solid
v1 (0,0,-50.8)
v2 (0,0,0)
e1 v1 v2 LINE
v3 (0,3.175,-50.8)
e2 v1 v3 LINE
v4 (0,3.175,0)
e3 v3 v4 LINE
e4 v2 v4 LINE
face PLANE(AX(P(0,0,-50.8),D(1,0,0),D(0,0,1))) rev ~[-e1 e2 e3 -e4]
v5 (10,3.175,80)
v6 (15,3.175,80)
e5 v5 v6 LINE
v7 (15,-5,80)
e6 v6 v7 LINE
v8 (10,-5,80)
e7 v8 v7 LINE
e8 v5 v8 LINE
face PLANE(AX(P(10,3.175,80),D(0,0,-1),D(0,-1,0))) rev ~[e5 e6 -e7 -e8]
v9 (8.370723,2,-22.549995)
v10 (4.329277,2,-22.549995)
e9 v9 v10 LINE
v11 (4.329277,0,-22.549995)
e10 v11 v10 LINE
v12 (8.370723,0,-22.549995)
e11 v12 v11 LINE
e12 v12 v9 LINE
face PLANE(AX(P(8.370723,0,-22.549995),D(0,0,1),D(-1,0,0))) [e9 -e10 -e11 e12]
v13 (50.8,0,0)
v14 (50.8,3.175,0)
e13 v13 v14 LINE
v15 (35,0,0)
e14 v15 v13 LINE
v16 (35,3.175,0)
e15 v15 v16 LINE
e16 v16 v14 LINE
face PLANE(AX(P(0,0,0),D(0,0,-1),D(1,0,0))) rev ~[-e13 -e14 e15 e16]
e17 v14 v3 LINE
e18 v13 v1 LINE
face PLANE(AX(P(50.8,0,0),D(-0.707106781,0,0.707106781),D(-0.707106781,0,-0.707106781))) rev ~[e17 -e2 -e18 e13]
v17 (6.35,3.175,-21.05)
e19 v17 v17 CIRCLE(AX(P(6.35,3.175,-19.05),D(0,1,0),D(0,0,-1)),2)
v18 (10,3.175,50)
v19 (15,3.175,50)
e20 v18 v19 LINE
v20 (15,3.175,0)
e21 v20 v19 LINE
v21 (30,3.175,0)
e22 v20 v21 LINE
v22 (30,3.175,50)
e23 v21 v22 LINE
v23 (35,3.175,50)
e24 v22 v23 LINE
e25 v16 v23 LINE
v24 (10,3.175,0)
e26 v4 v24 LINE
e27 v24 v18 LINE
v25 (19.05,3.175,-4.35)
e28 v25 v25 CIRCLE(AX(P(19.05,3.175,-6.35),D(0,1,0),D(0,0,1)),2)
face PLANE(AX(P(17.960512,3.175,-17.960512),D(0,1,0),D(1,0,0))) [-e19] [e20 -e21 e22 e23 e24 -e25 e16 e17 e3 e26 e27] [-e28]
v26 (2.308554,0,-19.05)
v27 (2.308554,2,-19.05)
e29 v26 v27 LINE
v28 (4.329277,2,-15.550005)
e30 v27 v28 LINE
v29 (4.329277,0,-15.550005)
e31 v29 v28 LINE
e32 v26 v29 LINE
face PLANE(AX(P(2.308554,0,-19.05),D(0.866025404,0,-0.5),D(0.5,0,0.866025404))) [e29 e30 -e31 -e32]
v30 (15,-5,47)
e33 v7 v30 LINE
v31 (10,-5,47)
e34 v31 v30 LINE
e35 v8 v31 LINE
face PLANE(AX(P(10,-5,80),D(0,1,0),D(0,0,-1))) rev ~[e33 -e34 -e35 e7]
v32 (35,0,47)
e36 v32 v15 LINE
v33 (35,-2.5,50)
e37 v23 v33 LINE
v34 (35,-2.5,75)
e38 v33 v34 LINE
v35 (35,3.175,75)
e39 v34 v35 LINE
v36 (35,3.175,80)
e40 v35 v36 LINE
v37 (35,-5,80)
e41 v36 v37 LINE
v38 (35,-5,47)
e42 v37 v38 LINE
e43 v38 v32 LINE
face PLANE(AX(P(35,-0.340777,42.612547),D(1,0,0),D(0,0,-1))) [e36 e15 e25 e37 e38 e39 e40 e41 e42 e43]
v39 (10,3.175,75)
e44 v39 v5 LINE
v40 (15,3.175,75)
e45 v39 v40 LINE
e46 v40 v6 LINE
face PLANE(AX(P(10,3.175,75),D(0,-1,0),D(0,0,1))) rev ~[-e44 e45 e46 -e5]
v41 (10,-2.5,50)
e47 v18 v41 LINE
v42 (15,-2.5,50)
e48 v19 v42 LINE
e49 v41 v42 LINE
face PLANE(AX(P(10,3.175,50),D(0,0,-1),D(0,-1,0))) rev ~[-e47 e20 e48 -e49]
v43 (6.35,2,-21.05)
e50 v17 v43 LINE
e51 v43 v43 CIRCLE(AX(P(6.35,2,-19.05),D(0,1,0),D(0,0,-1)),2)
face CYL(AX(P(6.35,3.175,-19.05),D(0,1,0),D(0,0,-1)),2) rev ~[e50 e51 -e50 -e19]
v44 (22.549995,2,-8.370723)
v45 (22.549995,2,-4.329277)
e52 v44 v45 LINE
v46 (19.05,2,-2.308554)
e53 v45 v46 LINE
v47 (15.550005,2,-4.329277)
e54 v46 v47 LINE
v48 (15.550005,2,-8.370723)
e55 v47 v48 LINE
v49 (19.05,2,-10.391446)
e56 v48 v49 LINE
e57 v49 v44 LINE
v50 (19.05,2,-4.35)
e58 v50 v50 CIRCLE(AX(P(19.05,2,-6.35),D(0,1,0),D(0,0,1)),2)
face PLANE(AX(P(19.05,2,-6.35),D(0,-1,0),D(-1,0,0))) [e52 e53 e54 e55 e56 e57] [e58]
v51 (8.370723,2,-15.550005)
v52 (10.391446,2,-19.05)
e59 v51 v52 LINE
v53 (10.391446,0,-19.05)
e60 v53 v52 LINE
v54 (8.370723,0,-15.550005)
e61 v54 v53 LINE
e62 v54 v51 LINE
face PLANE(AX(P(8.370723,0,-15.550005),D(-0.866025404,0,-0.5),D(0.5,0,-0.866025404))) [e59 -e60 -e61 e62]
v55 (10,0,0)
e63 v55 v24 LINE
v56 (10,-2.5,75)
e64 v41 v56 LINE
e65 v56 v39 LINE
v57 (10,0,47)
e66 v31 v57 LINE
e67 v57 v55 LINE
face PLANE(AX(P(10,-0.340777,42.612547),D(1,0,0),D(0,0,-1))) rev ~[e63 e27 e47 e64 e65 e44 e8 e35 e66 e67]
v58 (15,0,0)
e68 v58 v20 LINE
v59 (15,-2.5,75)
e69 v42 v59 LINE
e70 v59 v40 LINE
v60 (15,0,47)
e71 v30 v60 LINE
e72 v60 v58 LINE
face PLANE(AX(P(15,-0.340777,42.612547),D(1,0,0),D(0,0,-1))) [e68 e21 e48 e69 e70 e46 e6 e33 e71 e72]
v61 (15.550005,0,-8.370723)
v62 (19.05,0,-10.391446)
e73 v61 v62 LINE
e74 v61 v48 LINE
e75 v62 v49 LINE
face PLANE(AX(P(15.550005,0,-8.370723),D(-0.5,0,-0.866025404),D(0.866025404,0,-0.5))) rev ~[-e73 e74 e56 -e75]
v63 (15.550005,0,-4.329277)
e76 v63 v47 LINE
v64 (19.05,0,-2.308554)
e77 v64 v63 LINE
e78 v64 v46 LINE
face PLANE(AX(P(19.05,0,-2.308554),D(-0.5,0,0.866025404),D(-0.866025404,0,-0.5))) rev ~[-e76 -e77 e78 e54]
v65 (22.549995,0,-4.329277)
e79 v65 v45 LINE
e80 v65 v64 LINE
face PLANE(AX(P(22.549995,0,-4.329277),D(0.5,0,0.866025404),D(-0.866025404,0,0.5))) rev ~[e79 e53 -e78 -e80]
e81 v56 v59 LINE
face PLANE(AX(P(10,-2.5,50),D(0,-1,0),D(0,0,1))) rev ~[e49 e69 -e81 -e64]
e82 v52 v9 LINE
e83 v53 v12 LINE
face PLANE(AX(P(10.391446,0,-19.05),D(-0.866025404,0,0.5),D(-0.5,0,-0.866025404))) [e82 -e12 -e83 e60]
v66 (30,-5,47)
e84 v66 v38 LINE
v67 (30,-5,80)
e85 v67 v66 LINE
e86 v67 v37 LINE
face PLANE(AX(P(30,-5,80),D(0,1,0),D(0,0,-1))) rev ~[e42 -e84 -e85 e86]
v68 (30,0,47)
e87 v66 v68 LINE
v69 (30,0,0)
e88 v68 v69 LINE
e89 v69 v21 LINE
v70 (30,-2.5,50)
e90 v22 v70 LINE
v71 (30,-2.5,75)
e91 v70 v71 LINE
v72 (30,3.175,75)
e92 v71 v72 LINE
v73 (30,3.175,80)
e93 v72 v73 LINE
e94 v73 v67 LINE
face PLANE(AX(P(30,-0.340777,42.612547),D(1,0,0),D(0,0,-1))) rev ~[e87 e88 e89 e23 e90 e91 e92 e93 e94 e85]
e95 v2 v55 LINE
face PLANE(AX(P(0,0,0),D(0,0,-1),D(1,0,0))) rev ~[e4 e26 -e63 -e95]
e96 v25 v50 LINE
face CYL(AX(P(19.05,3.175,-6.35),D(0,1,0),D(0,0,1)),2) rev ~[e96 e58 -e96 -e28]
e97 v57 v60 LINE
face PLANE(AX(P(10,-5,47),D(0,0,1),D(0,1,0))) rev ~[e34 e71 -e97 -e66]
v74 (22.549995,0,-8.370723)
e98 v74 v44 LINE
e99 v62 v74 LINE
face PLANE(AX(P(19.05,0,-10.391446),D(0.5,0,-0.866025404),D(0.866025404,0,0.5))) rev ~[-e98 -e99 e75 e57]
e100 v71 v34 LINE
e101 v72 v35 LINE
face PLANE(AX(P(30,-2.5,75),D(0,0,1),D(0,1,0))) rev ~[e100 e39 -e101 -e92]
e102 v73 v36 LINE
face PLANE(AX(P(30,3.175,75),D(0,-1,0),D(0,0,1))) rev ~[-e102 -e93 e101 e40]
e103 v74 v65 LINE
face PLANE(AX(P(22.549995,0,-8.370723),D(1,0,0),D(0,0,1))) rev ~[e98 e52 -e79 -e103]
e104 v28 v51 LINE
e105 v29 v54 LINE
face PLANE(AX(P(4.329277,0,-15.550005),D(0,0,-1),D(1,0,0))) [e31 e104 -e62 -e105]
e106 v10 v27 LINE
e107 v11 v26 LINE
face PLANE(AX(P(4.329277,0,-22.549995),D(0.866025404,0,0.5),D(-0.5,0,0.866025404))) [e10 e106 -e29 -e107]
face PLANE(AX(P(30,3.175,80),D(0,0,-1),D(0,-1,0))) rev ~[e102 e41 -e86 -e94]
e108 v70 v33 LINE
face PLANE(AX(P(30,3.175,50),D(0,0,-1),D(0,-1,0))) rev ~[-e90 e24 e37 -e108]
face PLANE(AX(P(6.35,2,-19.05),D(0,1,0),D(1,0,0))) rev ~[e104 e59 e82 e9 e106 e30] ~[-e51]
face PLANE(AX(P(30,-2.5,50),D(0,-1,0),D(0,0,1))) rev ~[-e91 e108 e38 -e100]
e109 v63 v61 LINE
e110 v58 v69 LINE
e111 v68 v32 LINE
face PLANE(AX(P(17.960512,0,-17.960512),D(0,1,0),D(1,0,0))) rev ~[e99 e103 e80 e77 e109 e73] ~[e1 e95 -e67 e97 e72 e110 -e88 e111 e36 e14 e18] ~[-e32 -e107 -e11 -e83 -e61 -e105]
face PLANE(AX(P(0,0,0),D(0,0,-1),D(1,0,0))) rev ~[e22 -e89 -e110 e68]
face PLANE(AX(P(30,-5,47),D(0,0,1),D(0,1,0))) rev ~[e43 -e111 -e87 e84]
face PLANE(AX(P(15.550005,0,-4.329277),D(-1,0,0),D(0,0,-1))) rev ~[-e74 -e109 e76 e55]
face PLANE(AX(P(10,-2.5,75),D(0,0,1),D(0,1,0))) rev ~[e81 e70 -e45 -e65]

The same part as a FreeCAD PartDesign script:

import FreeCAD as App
import Part
import Sketcher
Q = App.Units.Quantity

doc = App.newDocument("Part")
params = doc.addObject("Spreadsheet::Sheet", "Params")
for row, (alias, value) in enumerate([
    ("sketch1_width", "50.8 mm"),
    ("pad1_length", "3.175 mm"),
    ("sketch2_diameter", "4 mm"),
    ("pocket2_length", "2 mm"),
    ("sketch4_width", "5 mm"),
    ("sketch4_height", "50 mm"),
    ("sketch4_height2", "25 mm"),
    ("sketch4_height3", "33 mm"),
    ("pad2_length", "5 mm"),
    ("sketch5_width", "5 mm"),
    ("sketch5_height", "50 mm"),
    ("sketch5_height2", "25 mm"),
    ("sketch5_height3", "33 mm"),
    ("pad3_length", "5 mm"),
], start=1):
    params.set(f"A{row}", alias)
    params.set(f"B{row}", "=" + value)
    params.setAlias(f"B{row}", alias)

body = doc.addObject("PartDesign::Body", "Body")

# Sketch on XZ plane
sketch1 = body.newObject("Sketcher::SketchObject", "Sketch")
sketch1.AttachmentSupport = (doc.getObject("XZ_Plane"), [""])
sketch1.MapMode = "FlatFace"
sketch1.addGeometry([
    Part.LineSegment(App.Vector(0, 0, 0), App.Vector(51, 0, 0)),
    Part.LineSegment(App.Vector(51, 0, 0), App.Vector(0, -51, 0)),
    Part.LineSegment(App.Vector(0, -51, 0), App.Vector(0, 0, 0)),
], False)
sketch1.addConstraint([
    Sketcher.Constraint("Coincident", 0, 2, 1, 1),
    Sketcher.Constraint("Coincident", 1, 2, 2, 1),
    Sketcher.Constraint("Coincident", 2, 2, 0, 1),
    Sketcher.Constraint("Horizontal", 0),
    Sketcher.Constraint("Vertical", 2),
    Sketcher.Constraint("Coincident", 2, 2, -1, 1),
    Sketcher.Constraint("Equal", 0, 2),
    Sketcher.Constraint("DistanceX", 0, 1, 0, 2, 50.8),
])
sketch1.setExpression("Constraints[7]", "Params.sketch1_width")
pad1 = body.newObject("PartDesign::Pad", "Pad")
pad1.Profile = sketch1
pad1.setExpression("Length", "Params.pad1_length")
pad1.Reversed = True

# Sketch on XZ plane
sketch2 = body.newObject("Sketcher::SketchObject", "Sketch001")
sketch2.AttachmentSupport = (doc.getObject("XZ_Plane"), [""])
sketch2.MapMode = "FlatFace"
sketch2.AttachmentOffset = App.Placement(App.Vector(0, 0, -3.175), App.Rotation())
sketch2.addGeometry([
    Part.Circle(App.Vector(19.1, -6.3, 0), App.Vector(0, 0, 1), 2),
    Part.Circle(App.Vector(6.3, -19.1, 0), App.Vector(0, 0, 1), 2),
], False)
sketch2.addConstraint([
    Sketcher.Constraint("Equal", 0, 1),
    Sketcher.Constraint("Diameter", 0, 4.0),
    Sketcher.Constraint("DistanceX", 1, 3, 0, 3, 12.7),
    Sketcher.Constraint("DistanceY", 1, 3, 0, 3, 12.7),
    Sketcher.Constraint("DistanceX", -1, 1, 0, 3, 19.05),
    Sketcher.Constraint("DistanceY", 0, 3, -1, 1, 6.35),
])
sketch2.setExpression("Constraints[1]", "Params.sketch2_diameter")
pocket1 = body.newObject("PartDesign::Pocket", "Pocket")
pocket1.Profile = sketch2
pocket1.Type = "ThroughAll"
pocket1.Reversed = True

# Sketch on XZ plane
sketch3 = body.newObject("Sketcher::SketchObject", "Sketch002")
sketch3.AttachmentSupport = (doc.getObject("XZ_Plane"), [""])
sketch3.MapMode = "FlatFace"
sketch3.addGeometry([
    Part.LineSegment(App.Vector(8.4, -15.6, 0), App.Vector(10.4, -19.1, 0)),  # 0
    Part.LineSegment(App.Vector(10.4, -19.1, 0), App.Vector(8.4, -22.5, 0)),  # 1
    Part.LineSegment(App.Vector(8.4, -22.5, 0), App.Vector(4.3, -22.5, 0)),  # 2
    Part.LineSegment(App.Vector(4.3, -22.5, 0), App.Vector(2.3, -19.1, 0)),  # 3
    Part.LineSegment(App.Vector(2.3, -19.1, 0), App.Vector(4.3, -15.6, 0)),  # 4
    Part.LineSegment(App.Vector(4.3, -15.6, 0), App.Vector(8.4, -15.6, 0)),  # 5
    Part.LineSegment(App.Vector(19.1, -2.3, 0), App.Vector(22.5, -4.3, 0)),  # 6
    Part.LineSegment(App.Vector(22.5, -4.3, 0), App.Vector(22.5, -8.4, 0)),  # 7
    Part.LineSegment(App.Vector(22.5, -8.4, 0), App.Vector(19.1, -10.4, 0)),  # 8
    Part.LineSegment(App.Vector(19.1, -10.4, 0), App.Vector(15.6, -8.4, 0)),  # 9
    Part.LineSegment(App.Vector(15.6, -8.4, 0), App.Vector(15.6, -4.3, 0)),  # 10
    Part.LineSegment(App.Vector(15.6, -4.3, 0), App.Vector(19.1, -2.3, 0)),  # 11
], False)
sketch3.addConstraint([
    Sketcher.Constraint("Coincident", 0, 2, 1, 1),
    Sketcher.Constraint("Coincident", 1, 2, 2, 1),
    Sketcher.Constraint("Coincident", 2, 2, 3, 1),
    Sketcher.Constraint("Coincident", 3, 2, 4, 1),
    Sketcher.Constraint("Coincident", 4, 2, 5, 1),
    Sketcher.Constraint("Coincident", 5, 2, 0, 1),
    Sketcher.Constraint("Coincident", 6, 2, 7, 1),
    Sketcher.Constraint("Coincident", 7, 2, 8, 1),
    Sketcher.Constraint("Coincident", 8, 2, 9, 1),
    Sketcher.Constraint("Coincident", 9, 2, 10, 1),
    Sketcher.Constraint("Coincident", 10, 2, 11, 1),
    Sketcher.Constraint("Coincident", 11, 2, 6, 1),
    Sketcher.Constraint("Horizontal", 2),
    Sketcher.Constraint("Horizontal", 5),
    Sketcher.Constraint("Vertical", 7),
    Sketcher.Constraint("Vertical", 10),
    Sketcher.Constraint("Parallel", 0, 3),
    Sketcher.Constraint("Parallel", 1, 4),
    Sketcher.Constraint("Perpendicular", 4, 6),
    Sketcher.Constraint("Perpendicular", 3, 8),
    Sketcher.Constraint("Parallel", 6, 9),
    Sketcher.Constraint("Parallel", 8, 11),
    Sketcher.Constraint("Horizontal", 0, 2, 3, 2),
    Sketcher.Constraint("Horizontal", 7, 2, 9, 2),
    Sketcher.Constraint("Horizontal", 6, 2, 10, 2),
    Sketcher.Constraint("Vertical", 2, 2, 4, 2),
    Sketcher.Constraint("Vertical", 1, 2, 5, 2),
    Sketcher.Constraint("Equal", 5, 7),
    Sketcher.Constraint("Equal", 4, 6),
    Sketcher.Constraint("Angle", 0, Q("-60 deg")),
    Sketcher.Constraint("DistanceY", 0, 2, -1, 1, 19.05),
    Sketcher.Constraint("DistanceX", -1, 1, 8, 2, 19.05),
    Sketcher.Constraint("DistanceX", 2, 2, 2, 1, 4.041446),
    Sketcher.Constraint("DistanceX", 2, 2, 0, 2, 6.062169),
    Sketcher.Constraint("DistanceX", 5, 2, 6, 2, 14.179272),
    Sketcher.Constraint("DistanceY", 5, 2, 6, 2, 11.220728),
])
pocket2 = body.newObject("PartDesign::Pocket", "Pocket001")
pocket2.Profile = sketch3
pocket2.setExpression("Length", "Params.pocket2_length")

# Sketch on YZ plane
sketch4 = body.newObject("Sketcher::SketchObject", "Sketch003")
sketch4.AttachmentSupport = (doc.getObject("YZ_Plane"), [""])
sketch4.MapMode = "FlatFace"
sketch4.AttachmentOffset = App.Placement(App.Vector(0, 0, 10), App.Rotation())
sketch4.addGeometry([
    Part.LineSegment(App.Vector(0, 0, 0), App.Vector(3.2, 0, 0)),  # 0
    Part.LineSegment(App.Vector(3.2, 0, 0), App.Vector(3.2, 50, 0)),  # 1
    Part.LineSegment(App.Vector(3.2, 50, 0), App.Vector(-2.5, 50, 0)),  # 2
    Part.LineSegment(App.Vector(-2.5, 50, 0), App.Vector(-2.5, 75, 0)),  # 3
    Part.LineSegment(App.Vector(-2.5, 75, 0), App.Vector(3.2, 75, 0)),  # 4
    Part.LineSegment(App.Vector(3.2, 75, 0), App.Vector(3.2, 80, 0)),  # 5
    Part.LineSegment(App.Vector(3.2, 80, 0), App.Vector(-5, 80, 0)),  # 6
    Part.LineSegment(App.Vector(-5, 80, 0), App.Vector(-5, 47, 0)),  # 7
    Part.LineSegment(App.Vector(-5, 47, 0), App.Vector(0, 47, 0)),  # 8
    Part.LineSegment(App.Vector(0, 47, 0), App.Vector(0, 0, 0)),  # 9
], False)
sketch4.addConstraint([
    Sketcher.Constraint("Coincident", 0, 2, 1, 1),
    Sketcher.Constraint("Coincident", 1, 2, 2, 1),
    Sketcher.Constraint("Coincident", 2, 2, 3, 1),
    Sketcher.Constraint("Coincident", 3, 2, 4, 1),
    Sketcher.Constraint("Coincident", 4, 2, 5, 1),
    Sketcher.Constraint("Coincident", 5, 2, 6, 1),
    Sketcher.Constraint("Coincident", 6, 2, 7, 1),
    Sketcher.Constraint("Coincident", 7, 2, 8, 1),
    Sketcher.Constraint("Coincident", 8, 2, 9, 1),
    Sketcher.Constraint("Coincident", 9, 2, 0, 1),
    Sketcher.Constraint("Horizontal", 0),
    Sketcher.Constraint("Vertical", 1),
    Sketcher.Constraint("Horizontal", 2),
    Sketcher.Constraint("Vertical", 3),
    Sketcher.Constraint("Horizontal", 4),
    Sketcher.Constraint("Vertical", 5),
    Sketcher.Constraint("Horizontal", 6),
    Sketcher.Constraint("Vertical", 7),
    Sketcher.Constraint("Horizontal", 8),
    Sketcher.Constraint("Vertical", 9),
    Sketcher.Constraint("Coincident", 9, 2, -1, 1),
    Sketcher.Constraint("Vertical", 1, 2, 4, 2),
    Sketcher.Constraint("Equal", 8, 5),
    Sketcher.Constraint("DistanceX", 8, 1, 8, 2, 5.0),
    Sketcher.Constraint("DistanceY", 1, 1, 1, 2, 50.0),
    Sketcher.Constraint("DistanceY", 3, 1, 3, 2, 25.0),
    Sketcher.Constraint("DistanceY", 7, 2, 7, 1, 33.0),
    Sketcher.Constraint("DistanceX", 2, 2, -1, 1, 2.5),
    Sketcher.Constraint("DistanceX", 0, 1, 0, 2, 3.175),
])
sketch4.setExpression("Constraints[23]", "Params.sketch4_width")
sketch4.setExpression("Constraints[24]", "Params.sketch4_height")
sketch4.setExpression("Constraints[25]", "Params.sketch4_height2")
sketch4.setExpression("Constraints[26]", "Params.sketch4_height3")
pad2 = body.newObject("PartDesign::Pad", "Pad001")
pad2.Profile = sketch4
pad2.setExpression("Length", "Params.pad2_length")

# Sketch on YZ plane
sketch5 = body.newObject("Sketcher::SketchObject", "Sketch004")
sketch5.AttachmentSupport = (doc.getObject("YZ_Plane"), [""])
sketch5.MapMode = "FlatFace"
sketch5.AttachmentOffset = App.Placement(App.Vector(0, 0, 30), App.Rotation())
sketch5.addGeometry([
    Part.LineSegment(App.Vector(0, 0, 0), App.Vector(3.2, 0, 0)),  # 0
    Part.LineSegment(App.Vector(3.2, 0, 0), App.Vector(3.2, 50, 0)),  # 1
    Part.LineSegment(App.Vector(3.2, 50, 0), App.Vector(-2.5, 50, 0)),  # 2
    Part.LineSegment(App.Vector(-2.5, 50, 0), App.Vector(-2.5, 75, 0)),  # 3
    Part.LineSegment(App.Vector(-2.5, 75, 0), App.Vector(3.2, 75, 0)),  # 4
    Part.LineSegment(App.Vector(3.2, 75, 0), App.Vector(3.2, 80, 0)),  # 5
    Part.LineSegment(App.Vector(3.2, 80, 0), App.Vector(-5, 80, 0)),  # 6
    Part.LineSegment(App.Vector(-5, 80, 0), App.Vector(-5, 47, 0)),  # 7
    Part.LineSegment(App.Vector(-5, 47, 0), App.Vector(0, 47, 0)),  # 8
    Part.LineSegment(App.Vector(0, 47, 0), App.Vector(0, 0, 0)),  # 9
], False)
sketch5.addConstraint([
    Sketcher.Constraint("Coincident", 0, 2, 1, 1),
    Sketcher.Constraint("Coincident", 1, 2, 2, 1),
    Sketcher.Constraint("Coincident", 2, 2, 3, 1),
    Sketcher.Constraint("Coincident", 3, 2, 4, 1),
    Sketcher.Constraint("Coincident", 4, 2, 5, 1),
    Sketcher.Constraint("Coincident", 5, 2, 6, 1),
    Sketcher.Constraint("Coincident", 6, 2, 7, 1),
    Sketcher.Constraint("Coincident", 7, 2, 8, 1),
    Sketcher.Constraint("Coincident", 8, 2, 9, 1),
    Sketcher.Constraint("Coincident", 9, 2, 0, 1),
    Sketcher.Constraint("Horizontal", 0),
    Sketcher.Constraint("Vertical", 1),
    Sketcher.Constraint("Horizontal", 2),
    Sketcher.Constraint("Vertical", 3),
    Sketcher.Constraint("Horizontal", 4),
    Sketcher.Constraint("Vertical", 5),
    Sketcher.Constraint("Horizontal", 6),
    Sketcher.Constraint("Vertical", 7),
    Sketcher.Constraint("Horizontal", 8),
    Sketcher.Constraint("Vertical", 9),
    Sketcher.Constraint("Coincident", 9, 2, -1, 1),
    Sketcher.Constraint("Vertical", 1, 2, 4, 2),
    Sketcher.Constraint("Equal", 8, 5),
    Sketcher.Constraint("DistanceX", 8, 1, 8, 2, 5.0),
    Sketcher.Constraint("DistanceY", 1, 1, 1, 2, 50.0),
    Sketcher.Constraint("DistanceY", 3, 1, 3, 2, 25.0),
    Sketcher.Constraint("DistanceY", 7, 2, 7, 1, 33.0),
    Sketcher.Constraint("DistanceX", 2, 2, -1, 1, 2.5),
    Sketcher.Constraint("DistanceX", 0, 1, 0, 2, 3.175),
])
sketch5.setExpression("Constraints[23]", "Params.sketch5_width")
sketch5.setExpression("Constraints[24]", "Params.sketch5_height")
sketch5.setExpression("Constraints[25]", "Params.sketch5_height2")
sketch5.setExpression("Constraints[26]", "Params.sketch5_height3")
pad3 = body.newObject("PartDesign::Pad", "Pad002")
pad3.Profile = sketch5
pad3.setExpression("Length", "Params.pad3_length")

doc.recompute()
